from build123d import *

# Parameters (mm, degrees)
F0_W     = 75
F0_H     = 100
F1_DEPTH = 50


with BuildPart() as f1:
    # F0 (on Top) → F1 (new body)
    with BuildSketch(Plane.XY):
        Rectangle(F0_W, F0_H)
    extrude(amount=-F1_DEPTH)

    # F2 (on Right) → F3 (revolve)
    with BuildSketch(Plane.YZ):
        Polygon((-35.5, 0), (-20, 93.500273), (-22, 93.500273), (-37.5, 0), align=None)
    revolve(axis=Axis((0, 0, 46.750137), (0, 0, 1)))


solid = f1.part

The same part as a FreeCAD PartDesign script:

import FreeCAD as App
import Part
import Sketcher

V = App.Vector
Q = App.Units.Quantity


def add_polygon(sketch, points):
    """Adds a closed chain of lines whose ends are joined by coincident constraints."""
    first, n = sketch.GeometryCount, len(points)
    for a, b in zip(points, points[1:] + points[:1]):
        sketch.addGeometry(Part.LineSegment(App.Vector(*a, 0), App.Vector(*b, 0)), False)
    for i in range(n):
        sketch.addConstraint(Sketcher.Constraint("Coincident", first + i, 2, first + (i + 1) % n, 1))

doc = App.newDocument("Part")
params = doc.addObject("Spreadsheet::Sheet", "Params")
for row, (alias, value) in enumerate([
    ("sketch1_width", "75 mm"),
    ("sketch1_height", "100 mm"),
    ("pad1_length", "50 mm"),
    ("sketch2_width", "2 mm"),
    ("revolution_angle", "360 deg"),
], start=1):
    params.set(f"A{row}", alias)
    params.set(f"B{row}", "=" + value)
    params.setAlias(f"B{row}", alias)

body = doc.addObject("PartDesign::Body", "Body")

# Sketch on XY plane
sketch1 = doc.addObject("Sketcher::SketchObject", "Sketch")
body.addObject(sketch1)
sketch1.AttachmentSupport = (doc.XY_Plane, [""])
sketch1.MapMode = "FlatFace"
add_polygon(sketch1, [(-38, 50), (-38, -50), (38, -50), (38, 50)])  # lines 0-3
sketch1.addConstraint(Sketcher.Constraint("Vertical", 0))
sketch1.addConstraint(Sketcher.Constraint("Horizontal", 1))
sketch1.addConstraint(Sketcher.Constraint("Vertical", 2))
sketch1.addConstraint(Sketcher.Constraint("Horizontal", 3))
sketch1.addConstraint(Sketcher.Constraint("Symmetric", 0, 2, 2, 2, -1, 1))
sketch1.addConstraint(Sketcher.Constraint("DistanceX", 1, 1, 1, 2, Q("75 mm")))
sketch1.addConstraint(Sketcher.Constraint("DistanceY", 0, 2, 0, 1, Q("100 mm")))
sketch1.setExpression("Constraints[9]", "Params.sketch1_width")
sketch1.setExpression("Constraints[10]", "Params.sketch1_height")
pad1 = doc.addObject("PartDesign::Pad", "Pad")
body.addObject(pad1)
pad1.Profile = sketch1
pad1.setExpression("Length", "Params.pad1_length")
pad1.Reversed = True

# Sketch on YZ plane
sketch2 = doc.addObject("Sketcher::SketchObject", "Sketch001")
body.addObject(sketch2)
sketch2.AttachmentSupport = (doc.YZ_Plane, [""])
sketch2.MapMode = "FlatFace"
add_polygon(sketch2, [(-35.5, 0), (-20, 93.5), (-22, 93.5), (-37.5, 0)])  # lines 0-3
sketch2.addConstraint(Sketcher.Constraint("Horizontal", 1))
sketch2.addConstraint(Sketcher.Constraint("Horizontal", 3))
sketch2.addConstraint(Sketcher.Constraint("PointOnObject", 2, 2, -1))
sketch2.addConstraint(Sketcher.Constraint("Parallel", 0, 2))
sketch2.addConstraint(Sketcher.Constraint("DistanceX", 1, 2, 1, 1, Q("2 mm")))
sketch2.addConstraint(Sketcher.Constraint("DistanceX", 0, 2, -1, 1, Q("20 mm")))
sketch2.addConstraint(Sketcher.Constraint("DistanceX", 2, 2, -1, 1, Q("37.5 mm")))
sketch2.addConstraint(Sketcher.Constraint("Distance", 0, Q("94.776321 mm")))
sketch2.setExpression("Constraints[8]", "Params.sketch2_width")
revolution = doc.addObject("PartDesign::Revolution", "Revolution")
body.addObject(revolution)
revolution.Profile = sketch2
revolution.ReferenceAxis = (sketch2, ["V_Axis"])
revolution.setExpression("Angle", "Params.revolution_angle")

doc.recompute()
